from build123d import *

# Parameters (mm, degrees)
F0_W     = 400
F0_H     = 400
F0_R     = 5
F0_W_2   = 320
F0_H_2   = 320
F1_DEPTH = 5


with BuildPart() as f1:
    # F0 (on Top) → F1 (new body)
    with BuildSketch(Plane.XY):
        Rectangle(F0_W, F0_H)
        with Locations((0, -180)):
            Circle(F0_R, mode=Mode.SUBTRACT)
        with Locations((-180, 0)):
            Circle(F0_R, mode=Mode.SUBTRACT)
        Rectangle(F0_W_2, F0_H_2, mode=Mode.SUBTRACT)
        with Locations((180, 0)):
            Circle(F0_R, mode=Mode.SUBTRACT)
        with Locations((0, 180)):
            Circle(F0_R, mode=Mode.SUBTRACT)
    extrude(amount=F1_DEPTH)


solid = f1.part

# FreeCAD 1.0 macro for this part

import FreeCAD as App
import Part
import Sketcher
from FreeCAD import Vector


def add_polygon(sketch, points):
    """Adds a closed chain of lines whose ends are joined by coincident constraints."""
    first, n = sketch.GeometryCount, len(points)
    for a, b in zip(points, points[1:] + points[:1]):
        sketch.addGeometry(Part.LineSegment(App.Vector(*a, 0), App.Vector(*b, 0)), False)
    for i in range(n):
        sketch.addConstraint(Sketcher.Constraint("Coincident", first + i, 2, first + (i + 1) % n, 1))

doc = App.newDocument("Part")
params = doc.addObject("Spreadsheet::Sheet", "Params")
for row, (alias, value) in enumerate([
    ("sketch1_diameter", "10 mm"),
    ("sketch1_width", "400 mm"),
    ("sketch1_width2", "320 mm"),
    ("pad1_length", "5 mm"),
], start=1):
    params.set(f"A{row}", alias)
    params.set(f"B{row}", "=" + value)
    params.setAlias(f"B{row}", alias)

body = doc.addObject("PartDesign::Body", "Body")

sketch1 = doc.addObject("Sketcher::SketchObject", "Sketch")
body.addObject(sketch1)
sketch1.AttachmentSupport = (doc.XY_Plane, [""])
sketch1.MapMode = "FlatFace"
add_polygon(sketch1, [(-200, 200), (-200, -200), (200, -200), (200, 200)])
sketch1.addGeometry(Part.Circle(Vector(0, -180, 0), Vector(0, 0, 1), 5), False)
sketch1.addGeometry(Part.Circle(Vector(-180, 0, 0), Vector(0, 0, 1), 5), False)
add_polygon(sketch1, [(160, -160), (-160, -160), (-160, 160), (160, 160)])
sketch1.addGeometry(Part.Circle(Vector(180, 0, 0), Vector(0, 0, 1), 5), False)
sketch1.addGeometry(Part.Circle(Vector(0, 180, 0), Vector(0, 0, 1), 5), False)
sketch1.addConstraint(Sketcher.Constraint("Vertical", 0))
sketch1.addConstraint(Sketcher.Constraint("Horizontal", 1))
sketch1.addConstraint(Sketcher.Constraint("Vertical", 2))
sketch1.addConstraint(Sketcher.Constraint("Horizontal", 3))
sketch1.addConstraint(Sketcher.Constraint("Horizontal", 6))
sketch1.addConstraint(Sketcher.Constraint("Vertical", 7))
sketch1.addConstraint(Sketcher.Constraint("Horizontal", 8))
sketch1.addConstraint(Sketcher.Constraint("Vertical", 9))
sketch1.addConstraint(Sketcher.Constraint("Equal", 4, 5))
sketch1.addConstraint(Sketcher.Constraint("Equal", 5, 10))
sketch1.addConstraint(Sketcher.Constraint("Equal", 10, 11))
sketch1.addConstraint(Sketcher.Constraint("Symmetric", 5, 3, 10, 3, -1, 1))
sketch1.addConstraint(Sketcher.Constraint("Symmetric", 4, 3, 11, 3, -1, 1))
sketch1.addConstraint(Sketcher.Constraint("Symmetric", 0, 2, 2, 2, -1, 1))
sketch1.addConstraint(Sketcher.Constraint("Symmetric", 6, 2, 8, 2, -1, 1))
sketch1.addConstraint(Sketcher.Constraint("PointOnObject", 4, 3, -2))
sketch1.addConstraint(Sketcher.Constraint("PointOnObject", 5, 3, -1))
sketch1.addConstraint(Sketcher.Constraint("Equal", 3, 0))
sketch1.addConstraint(Sketcher.Constraint("Equal", 8, 7))
sketch1.addConstraint(Sketcher.Constraint("Diameter", 4, 10.0))
sketch1.addConstraint(Sketcher.Constraint("DistanceX", 1, 1, 1, 2, 400.0))
sketch1.addConstraint(Sketcher.Constraint("DistanceX", 6, 2, 6, 1, 320.0))
sketch1.addConstraint(Sketcher.Constraint("DistanceY", 4, 3, -1, 1, 180.0))
sketch1.addConstraint(Sketcher.Constraint("DistanceX", 5, 3, -1, 1, 180.0))
sketch1.setExpression("Constraints[27]", "Params.sketch1_diameter")
sketch1.setExpression("Constraints[28]", "Params.sketch1_width")
sketch1.setExpression("Constraints[29]", "Params.sketch1_width2")
pad1 = doc.addObject("PartDesign::Pad", "Pad")
body.addObject(pad1)
pad1.Profile = sketch1
pad1.setExpression("Length", "Params.pad1_length")

doc.recompute()
